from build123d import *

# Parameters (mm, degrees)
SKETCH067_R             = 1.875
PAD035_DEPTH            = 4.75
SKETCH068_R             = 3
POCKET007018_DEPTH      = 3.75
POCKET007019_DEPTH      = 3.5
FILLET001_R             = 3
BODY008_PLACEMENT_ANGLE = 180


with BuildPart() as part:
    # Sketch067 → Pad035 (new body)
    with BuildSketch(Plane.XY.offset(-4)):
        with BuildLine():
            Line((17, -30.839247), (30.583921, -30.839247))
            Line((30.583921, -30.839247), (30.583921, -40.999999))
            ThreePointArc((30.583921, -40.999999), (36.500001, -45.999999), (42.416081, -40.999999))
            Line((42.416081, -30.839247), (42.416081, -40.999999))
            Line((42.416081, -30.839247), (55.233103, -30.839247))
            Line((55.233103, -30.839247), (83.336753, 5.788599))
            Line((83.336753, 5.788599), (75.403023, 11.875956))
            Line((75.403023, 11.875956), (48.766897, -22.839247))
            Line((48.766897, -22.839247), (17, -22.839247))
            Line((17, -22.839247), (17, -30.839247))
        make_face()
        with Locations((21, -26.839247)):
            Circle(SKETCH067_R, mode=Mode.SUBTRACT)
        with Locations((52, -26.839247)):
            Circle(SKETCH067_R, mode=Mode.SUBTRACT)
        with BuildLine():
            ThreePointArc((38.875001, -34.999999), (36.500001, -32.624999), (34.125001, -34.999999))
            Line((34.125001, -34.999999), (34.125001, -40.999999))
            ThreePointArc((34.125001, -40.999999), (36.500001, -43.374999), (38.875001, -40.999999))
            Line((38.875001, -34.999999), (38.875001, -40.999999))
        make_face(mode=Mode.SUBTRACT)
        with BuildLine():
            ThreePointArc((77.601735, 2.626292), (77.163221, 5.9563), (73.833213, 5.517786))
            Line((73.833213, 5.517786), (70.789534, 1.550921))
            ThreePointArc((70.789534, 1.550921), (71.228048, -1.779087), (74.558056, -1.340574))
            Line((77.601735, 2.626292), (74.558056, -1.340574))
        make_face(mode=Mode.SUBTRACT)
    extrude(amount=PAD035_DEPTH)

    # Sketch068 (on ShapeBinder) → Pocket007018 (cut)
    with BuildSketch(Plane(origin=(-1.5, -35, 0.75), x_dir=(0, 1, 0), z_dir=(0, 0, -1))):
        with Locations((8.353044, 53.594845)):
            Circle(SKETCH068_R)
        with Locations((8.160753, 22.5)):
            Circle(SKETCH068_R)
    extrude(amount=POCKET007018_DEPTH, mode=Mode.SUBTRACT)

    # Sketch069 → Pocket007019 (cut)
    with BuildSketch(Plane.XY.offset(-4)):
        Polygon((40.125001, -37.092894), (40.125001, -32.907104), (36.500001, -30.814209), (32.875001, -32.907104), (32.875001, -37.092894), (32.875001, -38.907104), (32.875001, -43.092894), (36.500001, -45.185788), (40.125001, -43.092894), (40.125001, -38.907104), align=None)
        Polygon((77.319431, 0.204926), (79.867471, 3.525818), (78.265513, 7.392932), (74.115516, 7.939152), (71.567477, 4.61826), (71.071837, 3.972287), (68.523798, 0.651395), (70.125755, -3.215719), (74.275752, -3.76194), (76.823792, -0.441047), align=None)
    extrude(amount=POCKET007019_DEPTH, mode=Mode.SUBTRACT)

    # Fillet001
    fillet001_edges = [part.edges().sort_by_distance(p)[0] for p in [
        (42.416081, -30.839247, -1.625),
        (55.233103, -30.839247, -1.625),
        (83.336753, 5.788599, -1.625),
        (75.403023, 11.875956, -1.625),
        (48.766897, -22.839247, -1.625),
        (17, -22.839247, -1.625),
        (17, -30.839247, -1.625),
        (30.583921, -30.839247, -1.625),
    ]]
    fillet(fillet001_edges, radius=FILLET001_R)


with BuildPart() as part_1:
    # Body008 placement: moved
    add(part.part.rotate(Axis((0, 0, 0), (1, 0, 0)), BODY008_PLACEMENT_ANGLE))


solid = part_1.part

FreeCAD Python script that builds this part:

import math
import FreeCAD as App
import Part
import Sketcher
from FreeCAD import Vector
Q = App.Units.Quantity


def edges_at(feature, points):
    """Names of the edges that pass closest to the given points."""
    edges = feature.Shape.Edges
    near = lambda p: min(range(len(edges)), key=lambda i: edges[i].distToShape(Part.Vertex(*p))[0])
    return sorted({f"Edge{near(p) + 1}" for p in points})

doc = App.newDocument("Part")
params = doc.addObject("Spreadsheet::Sheet", "Params")
for row, (alias, value) in enumerate([
    ("sketch1_radius", "6 mm"),
    ("sketch1_diameter", "3.75 mm"),
    ("sketch1_height", "8 mm"),
    ("sketch1_height2", "6 mm"),
    ("sketch1_length", "9.999999 mm"),
    ("pad1_length", "4.75 mm"),
    ("sketch2_diameter", "6 mm"),
    ("pocket1_length", "3.75 mm"),
    ("pocket2_length", "3.5 mm"),
    ("fillet_radius", "3 mm"),
], start=1):
    params.set(f"A{row}", alias)
    params.set(f"B{row}", "=" + value)
    params.setAlias(f"B{row}", alias)

body = doc.addObject("PartDesign::Body", "Body")

sketch1 = body.newObject("Sketcher::SketchObject", "Sketch")
sketch1.AttachmentSupport = (doc.getObject("XY_Plane"), [""])
sketch1.MapMode = "FlatFace"
sketch1.AttachmentOffset = App.Placement(Vector(0, 0, -4), App.Rotation())
sketch1.addGeometry([
    Part.LineSegment(Vector(17, -30.839247, 0), Vector(30.583921, -30.839247, 0)),
    Part.LineSegment(Vector(30.583921, -30.839247, 0), Vector(30.583921, -40.999999, 0)),
    Part.ArcOfCircle(Part.Circle(Vector(36.500001, -39.999999, 0), Vector(0, 0, 1), 6), math.radians(-170.40593), math.radians(-9.59407)),
    Part.LineSegment(Vector(42.416081, -40.999999, 0), Vector(42.416081, -30.839247, 0)),
    Part.LineSegment(Vector(42.416081, -30.839247, 0), Vector(55.233103, -30.839247, 0)),
    Part.LineSegment(Vector(55.233103, -30.839247, 0), Vector(83.336753, 5.788599, 0)),
    Part.LineSegment(Vector(83.336753, 5.788599, 0), Vector(75.403023, 11.875956, 0)),
    Part.LineSegment(Vector(75.403023, 11.875956, 0), Vector(48.766897, -22.839247, 0)),
    Part.LineSegment(Vector(48.766897, -22.839247, 0), Vector(17, -22.839247, 0)),
    Part.LineSegment(Vector(17, -22.839247, 0), Vector(17, -30.839247, 0)),
    Part.ArcOfCircle(Part.Circle(Vector(36.500001, -34.999999, 0), Vector(0, 0, 1), 2.375), math.radians(0), math.radians(180)),
    Part.LineSegment(Vector(38.875001, -34.999999, 0), Vector(38.875001, -40.999999, 0)),
    Part.ArcOfCircle(Part.Circle(Vector(36.500001, -40.999999, 0), Vector(0, 0, 1), 2.375), math.radians(180), math.radians(360)),
    Part.LineSegment(Vector(34.125001, -40.999999, 0), Vector(34.125001, -34.999999, 0)),
    Part.Circle(Vector(21, -26.839247, 0), Vector(0, 0, 1), 1.875),
    Part.Circle(Vector(52, -26.839247, 0), Vector(0, 0, 1), 1.875),
    Part.ArcOfCircle(Part.Circle(Vector(75.717474, 4.072039, 0), Vector(0, 0, 1), 2.375), math.radians(-37.498137), math.radians(142.501863)),
    Part.LineSegment(Vector(77.601735, 2.626292, 0), Vector(74.558056, -1.340574, 0)),
    Part.ArcOfCircle(Part.Circle(Vector(72.673795, 0.105174, 0), Vector(0, 0, 1), 2.375), math.radians(142.50187), math.radians(322.501836)),
    Part.LineSegment(Vector(70.789534, 1.550921, 0), Vector(73.833213, 5.517786, 0)),
], False)
sketch1.addConstraint([
    Sketcher.Constraint("Coincident", 0, 2, 1, 1),
    Sketcher.Constraint("Coincident", 1, 2, 2, 1),
    Sketcher.Constraint("Coincident", 2, 2, 3, 1),
    Sketcher.Constraint("Coincident", 3, 2, 4, 1),
    Sketcher.Constraint("Coincident", 4, 2, 5, 1),
    Sketcher.Constraint("Coincident", 5, 2, 6, 1),
    Sketcher.Constraint("Coincident", 6, 2, 7, 1),
    Sketcher.Constraint("Coincident", 7, 2, 8, 1),
    Sketcher.Constraint("Coincident", 8, 2, 9, 1),
    Sketcher.Constraint("Coincident", 9, 2, 0, 1),
    Sketcher.Constraint("Tangent", 10, 1, 11, 1),
    Sketcher.Constraint("Tangent", 11, 2, 12, 2),
    Sketcher.Constraint("Tangent", 12, 1, 13, 1),
    Sketcher.Constraint("Tangent", 13, 2, 10, 2),
    Sketcher.Constraint("Tangent", 16, 1, 17, 1),
    Sketcher.Constraint("Tangent", 17, 2, 18, 2),
    Sketcher.Constraint("Tangent", 18, 1, 19, 1),
    Sketcher.Constraint("Tangent", 19, 2, 16, 2),
    Sketcher.Constraint("Horizontal", 0),
    Sketcher.Constraint("Vertical", 1),
    Sketcher.Constraint("Vertical", 3),
    Sketcher.Constraint("Horizontal", 4),
    Sketcher.Constraint("Horizontal", 8),
    Sketcher.Constraint("Vertical", 9),
    Sketcher.Constraint("Vertical", 11),
    Sketcher.Constraint("Vertical", 13),
    Sketcher.Constraint("Equal", 14, 15),
    Sketcher.Constraint("Equal", 12, 16),
    Sketcher.Constraint("Equal", 16, 18),
    Sketcher.Constraint("Perpendicular", 5, 6),
    Sketcher.Constraint("Perpendicular", 6, 7),
    Sketcher.Constraint("Parallel", 7, 17),
    Sketcher.Constraint("Horizontal", 14, 3, 15, 3),
    Sketcher.Constraint("Horizontal", 12, 3, 1, 2),
    Sketcher.Constraint("Horizontal", 1, 2, 2, 2),
    Sketcher.Constraint("Horizontal", 0, 2, 3, 2),
    Sketcher.Constraint("Vertical", 2, 3, 10, 3),
    Sketcher.Constraint("Radius", 2, Q("6 mm")),
    Sketcher.Constraint("Diameter", 14, Q("3.75 mm")),
    Sketcher.Constraint("DistanceY", 9, 2, 9, 1, Q("8 mm")),
    Sketcher.Constraint("DistanceY", 11, 2, 11, 1, Q("6 mm")),
    Sketcher.Constraint("Distance", 6, Q("9.999999 mm")),
    Sketcher.Constraint("Distance", 17, Q("5.000001 mm")),
    Sketcher.Constraint("DistanceY", 2, 3, -1, 1, Q("39.999999 mm")),
    Sketcher.Constraint("DistanceY", 10, 3, -1, 1, Q("34.999999 mm")),
    Sketcher.Constraint("DistanceX", -1, 1, 14, 3, Q("21 mm")),
    Sketcher.Constraint("DistanceX", -1, 1, 15, 3, Q("52 mm")),
    Sketcher.Constraint("DistanceX", -1, 1, 8, 2, Q("17 mm")),
    Sketcher.Constraint("Radius", 10, Q("2.375 mm")),
    Sketcher.Constraint("DistanceY", 0, 2, 14, 3, Q("4 mm")),
    Sketcher.Constraint("DistanceX", -1, 1, 2, 3, Q("36.500001 mm")),
    Sketcher.Constraint("DistanceY", -1, 1, 5, 2, Q("5.788599 mm")),
    Sketcher.Constraint("DistanceX", 18, 1, 16, 1, Q("6.812201 mm")),
    Sketcher.Constraint("Distance", 7, Q("43.756468 mm")),
    Sketcher.Constraint("DistanceX", 4, 1, 4, 2, Q("12.817022 mm")),
    Sketcher.Constraint("DistanceY", -1, 1, 16, 3, Q("4.072039 mm")),
    Sketcher.Constraint("DistanceX", 16, 3, 5, 2, Q("7.619279 mm")),
])
sketch1.setExpression("Constraints[37]", "Params.sketch1_radius")
sketch1.setExpression("Constraints[38]", "Params.sketch1_diameter")
sketch1.setExpression("Constraints[39]", "Params.sketch1_height")
sketch1.setExpression("Constraints[40]", "Params.sketch1_height2")
sketch1.setExpression("Constraints[41]", "Params.sketch1_length")
pad1 = body.newObject("PartDesign::Pad", "Pad")
pad1.Profile = sketch1
pad1.setExpression("Length", "Params.pad1_length")

sketch2 = body.newObject("Sketcher::SketchObject", "Sketch001")
sketch2.AttachmentSupport = (doc.getObject("XY_Plane"), [""])
sketch2.MapMode = "FlatFace"
sketch2.AttachmentOffset = App.Placement(Vector(0, 0, 0.75), App.Rotation())
sketch2.addGeometry([
    Part.Circle(Vector(52.094845, -26.646956, 0), Vector(0, 0, 1), 3),
    Part.Circle(Vector(21, -26.839247, 0), Vector(0, 0, 1), 3),
], False)
sketch2.addConstraint([
    Sketcher.Constraint("Equal", 0, 1),
    Sketcher.Constraint("Diameter", 0, Q("6 mm")),
    Sketcher.Constraint("DistanceX", -1, 1, 1, 3, Q("21 mm")),
    Sketcher.Constraint("DistanceY", 1, 3, 0, 3, Q("0.192291 mm")),
    Sketcher.Constraint("DistanceX", -1, 1, 0, 3, Q("52.094845 mm")),
    Sketcher.Constraint("DistanceY", 0, 3, -1, 1, Q("26.646956 mm")),
])
sketch2.setExpression("Constraints[1]", "Params.sketch2_diameter")
pocket1 = body.newObject("PartDesign::Pocket", "Pocket")
pocket1.Profile = sketch2
pocket1.setExpression("Length", "Params.pocket1_length")

sketch3 = body.newObject("Sketcher::SketchObject", "Sketch002")
sketch3.AttachmentSupport = (doc.getObject("XY_Plane"), [""])
sketch3.MapMode = "FlatFace"
sketch3.AttachmentOffset = App.Placement(Vector(0, 0, -4), App.Rotation())
sketch3.addGeometry([
    Part.LineSegment(Vector(40.125001, -32.907104, 0), Vector(36.500001, -30.814209, 0)),
    Part.LineSegment(Vector(36.500001, -30.814209, 0), Vector(32.875001, -32.907104, 0)),
    Part.LineSegment(Vector(32.875001, -32.907104, 0), Vector(32.875001, -43.092894, 0)),
    Part.LineSegment(Vector(32.875001, -43.092894, 0), Vector(36.500001, -45.185788, 0)),
    Part.LineSegment(Vector(36.500001, -45.185788, 0), Vector(40.125001, -43.092894, 0)),
    Part.LineSegment(Vector(40.125001, -43.092894, 0), Vector(40.125001, -32.907104, 0)),
    Part.LineSegment(Vector(77.319431, 0.204926, 0), Vector(79.867471, 3.525818, 0)),
    Part.LineSegment(Vector(79.867471, 3.525818, 0), Vector(78.265513, 7.392932, 0)),
    Part.LineSegment(Vector(78.265513, 7.392932, 0), Vector(74.115516, 7.939152, 0)),
    Part.LineSegment(Vector(74.115516, 7.939152, 0), Vector(71.567477, 4.61826, 0)),
    Part.LineSegment(Vector(71.567477, 4.61826, 0), Vector(71.071837, 3.972287, 0)),
    Part.LineSegment(Vector(71.071837, 3.972287, 0), Vector(68.523798, 0.651395, 0)),
    Part.LineSegment(Vector(68.523798, 0.651395, 0), Vector(70.125755, -3.215719, 0)),
    Part.LineSegment(Vector(70.125755, -3.215719, 0), Vector(74.275752, -3.76194, 0)),
    Part.LineSegment(Vector(74.275752, -3.76194, 0), Vector(76.823792, -0.441047, 0)),
    Part.LineSegment(Vector(76.823792, -0.441047, 0), Vector(77.319431, 0.204926, 0)),
], False)
sketch3.addConstraint([
    Sketcher.Constraint("Coincident", 0, 2, 1, 1),
    Sketcher.Constraint("Coincident", 1, 2, 2, 1),
    Sketcher.Constraint("Coincident", 2, 2, 3, 1),
    Sketcher.Constraint("Coincident", 3, 2, 4, 1),
    Sketcher.Constraint("Coincident", 4, 2, 5, 1),
    Sketcher.Constraint("Coincident", 5, 2, 0, 1),
    Sketcher.Constraint("Coincident", 6, 2, 7, 1),
    Sketcher.Constraint("Coincident", 7, 2, 8, 1),
    Sketcher.Constraint("Coincident", 8, 2, 9, 1),
    Sketcher.Constraint("Coincident", 9, 2, 10, 1),
    Sketcher.Constraint("Coincident", 10, 2, 11, 1),
    Sketcher.Constraint("Coincident", 11, 2, 12, 1),
    Sketcher.Constraint("Coincident", 12, 2, 13, 1),
    Sketcher.Constraint("Coincident", 13, 2, 14, 1),
    Sketcher.Constraint("Coincident", 14, 2, 15, 1),
    Sketcher.Constraint("Coincident", 15, 2, 6, 1),
    Sketcher.Constraint("Vertical", 2),
    Sketcher.Constraint("Vertical", 5),
    Sketcher.Constraint("Parallel", 0, 3),
    Sketcher.Constraint("Parallel", 1, 4),
    Sketcher.Constraint("Parallel", 6, 9),
    Sketcher.Constraint("Parallel", 9, 10),
    Sketcher.Constraint("Parallel", 10, 11),
    Sketcher.Constraint("Parallel", 7, 12),
    Sketcher.Constraint("Parallel", 8, 13),
    Sketcher.Constraint("Parallel", 11, 14),
    Sketcher.Constraint("Parallel", 14, 15),
    Sketcher.Constraint("Horizontal", 2, 2, 4, 2),
    Sketcher.Constraint("Horizontal", 1, 2, 5, 2),
    Sketcher.Constraint("Vertical", 0, 2, 3, 2),
    Sketcher.Constraint("Equal", 4, 6),
    Sketcher.Constraint("Equal", 6, 7),
    Sketcher.Constraint("Equal", 7, 8),
    Sketcher.Constraint("Equal", 8, 9),
    Sketcher.Constraint("Equal", 9, 11),
    Sketcher.Constraint("Equal", 11, 12),
    Sketcher.Constraint("Equal", 13, 14),
    Sketcher.Constraint("Angle", 0, Q("149.999997 deg")),
    Sketcher.Constraint("DistanceX", -1, 1, 0, 2, Q("36.500001 mm")),
    Sketcher.Constraint("DistanceX", 2, 2, 4, 2, Q("7.25 mm")),
    Sketcher.Constraint("DistanceY", 2, 2, 2, 1, Q("10.18579 mm")),
    Sketcher.Constraint("DistanceX", -1, 1, 11, 2, Q("68.523798 mm")),
    Sketcher.Constraint("DistanceY", 13, 2, 9, 2, Q("8.3802 mm")),
    Sketcher.Constraint("Distance", 10, Q("0.814211 mm")),
    Sketcher.Constraint("DistanceY", 0, 2, -1, 1, Q("30.814209 mm")),
    Sketcher.Constraint("DistanceX", -1, 1, 6, 2, Q("79.867471 mm")),
    Sketcher.Constraint("DistanceY", -1, 1, 6, 2, Q("3.525818 mm")),
    Sketcher.Constraint("DistanceY", -1, 1, 9, 2, Q("4.61826 mm")),
])
pocket2 = body.newObject("PartDesign::Pocket", "Pocket001")
pocket2.Profile = sketch3
pocket2.setExpression("Length", "Params.pocket2_length")
pocket2.Reversed = True
doc.recompute()

fillet = body.newObject("PartDesign::Fillet", "Fillet")
fillet.Base = (pocket2, edges_at(pocket2, [
    (42.416, -30.839, -1.625),
    (55.233, -30.839, -1.625),
    (83.337, 5.789, -1.625),
    (75.403, 11.876, -1.625),
    (48.767, -22.839, -1.625),
    (17, -22.839, -1.625),
    (17, -30.839, -1.625),
    (30.584, -30.839, -1.625),
]))
fillet.setExpression("Radius", "Params.fillet_radius")
body2 = doc.addObject("PartDesign::Body", "Body001")
doc.recompute()

body.Placement = App.Placement(Vector(0, 0, 0), App.Rotation(Vector(1, 0, 0), 180))
boolean = body2.newObject("PartDesign::Boolean", "Boolean")
boolean.Type = "Fuse"
boolean.addObjects([body])

doc.recompute()
